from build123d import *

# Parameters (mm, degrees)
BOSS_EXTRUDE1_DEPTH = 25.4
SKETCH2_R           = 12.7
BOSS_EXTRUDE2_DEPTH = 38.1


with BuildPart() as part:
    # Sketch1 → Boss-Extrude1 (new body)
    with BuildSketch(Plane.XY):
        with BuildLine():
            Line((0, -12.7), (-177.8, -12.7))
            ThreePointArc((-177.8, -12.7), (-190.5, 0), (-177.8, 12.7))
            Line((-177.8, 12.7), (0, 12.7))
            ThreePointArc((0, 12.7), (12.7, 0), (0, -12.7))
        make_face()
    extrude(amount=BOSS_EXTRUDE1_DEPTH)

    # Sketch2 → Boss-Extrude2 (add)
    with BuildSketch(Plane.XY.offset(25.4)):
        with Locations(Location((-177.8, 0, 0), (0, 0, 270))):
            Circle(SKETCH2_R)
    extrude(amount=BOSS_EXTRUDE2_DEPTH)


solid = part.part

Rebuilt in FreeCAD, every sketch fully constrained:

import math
import FreeCAD as App
import Part
import Sketcher
Q = App.Units.Quantity

doc = App.newDocument("Part")
body = doc.addObject("PartDesign::Body", "Body")

# Sketch on XY plane
sketch1 = doc.addObject("Sketcher::SketchObject", "Sketch")
body.addObject(sketch1)
sketch1.AttachmentSupport = (doc.XY_Plane, [""])
sketch1.MapMode = "FlatFace"
sketch1.addGeometry([
    Part.LineSegment(App.Vector(-177.8, -12.7, 0), App.Vector(0, -12.7, 0)),
    Part.ArcOfCircle(Part.Circle(App.Vector(0, 0, 0), App.Vector(0, 0, 1), 12.7), math.radians(-90), math.radians(90)),
    Part.LineSegment(App.Vector(0, 12.7, 0), App.Vector(-177.8, 12.7, 0)),
    Part.ArcOfCircle(Part.Circle(App.Vector(-177.8, 0, 0), App.Vector(0, 0, 1), 12.7), math.radians(90), math.radians(270)),
], False)
sketch1.addConstraint([
    Sketcher.Constraint("Tangent", 0, 2, 1, 1),
    Sketcher.Constraint("Tangent", 1, 2, 2, 1),
    Sketcher.Constraint("Tangent", 2, 2, 3, 1),
    Sketcher.Constraint("Tangent", 3, 2, 0, 1),
    Sketcher.Constraint("Horizontal", 0),
    Sketcher.Constraint("Horizontal", 2),
    Sketcher.Constraint("Coincident", 1, 3, -1, 1),
    Sketcher.Constraint("Radius", 1, Q("0.5 in")),
    Sketcher.Constraint("DistanceX", 0, 1, 0, 2, Q("7 in")),
])
pad1 = doc.addObject("PartDesign::Pad", "Pad")
body.addObject(pad1)
pad1.Profile = sketch1
pad1.Length = Q("1 in")

# Sketch on XY plane
sketch2 = doc.addObject("Sketcher::SketchObject", "Sketch001")
body.addObject(sketch2)
sketch2.AttachmentSupport = (doc.XY_Plane, [""])
sketch2.MapMode = "FlatFace"
sketch2.AttachmentOffset = App.Placement(App.Vector(0, 0, 1 * 25.4), App.Rotation())
sketch2.addGeometry(Part.Circle(App.Vector(-177.8, 0, 0), App.Vector(0, 0, 1), 12.7), False)
sketch2.addConstraint([
    Sketcher.Constraint("PointOnObject", 0, 3, -1),
    Sketcher.Constraint("Diameter", 0, Q("1 in")),
    Sketcher.Constraint("DistanceX", 0, 3, -1, 1, Q("7 in")),
])
pad2 = doc.addObject("PartDesign::Pad", "Pad001")
body.addObject(pad2)
pad2.Profile = sketch2
pad2.Length = Q("1.5 in")

doc.recompute()
